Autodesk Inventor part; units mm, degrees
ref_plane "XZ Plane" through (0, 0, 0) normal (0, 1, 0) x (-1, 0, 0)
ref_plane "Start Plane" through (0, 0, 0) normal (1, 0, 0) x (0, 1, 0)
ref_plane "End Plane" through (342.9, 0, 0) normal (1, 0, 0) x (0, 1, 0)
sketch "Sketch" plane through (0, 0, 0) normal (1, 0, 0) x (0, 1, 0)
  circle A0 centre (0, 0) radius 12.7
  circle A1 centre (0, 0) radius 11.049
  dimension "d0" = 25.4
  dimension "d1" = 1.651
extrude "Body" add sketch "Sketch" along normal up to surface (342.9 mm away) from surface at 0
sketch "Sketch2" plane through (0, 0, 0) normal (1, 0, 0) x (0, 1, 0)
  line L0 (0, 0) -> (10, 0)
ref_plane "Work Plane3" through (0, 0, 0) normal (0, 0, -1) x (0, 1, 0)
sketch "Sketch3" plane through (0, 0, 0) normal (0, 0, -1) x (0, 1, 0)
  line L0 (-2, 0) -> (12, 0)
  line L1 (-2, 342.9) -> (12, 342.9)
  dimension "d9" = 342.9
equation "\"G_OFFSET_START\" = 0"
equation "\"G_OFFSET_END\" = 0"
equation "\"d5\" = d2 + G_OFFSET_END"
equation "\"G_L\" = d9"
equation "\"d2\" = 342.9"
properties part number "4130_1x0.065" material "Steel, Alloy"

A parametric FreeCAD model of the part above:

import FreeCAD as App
import Part
import Sketcher
Q = App.Units.Quantity

doc = App.newDocument("Part")
body = doc.addObject("PartDesign::Body", "Body")

sketch1 = body.newObject("Sketcher::SketchObject", "Sketch")
sketch1.AttachmentSupport = (doc.getObject("YZ_Plane"), [""])
sketch1.MapMode = "FlatFace"
sketch1.addGeometry([
    Part.Circle(App.Vector(0, 0, 0), App.Vector(0, 0, 1), 13),
    Part.Circle(App.Vector(0, 0, 0), App.Vector(0, 0, 1), 11),
], False)
sketch1.addConstraint([
    Sketcher.Constraint("Coincident", 0, 3, -1, 1),
    Sketcher.Constraint("Coincident", 1, 3, -1, 1),
    Sketcher.Constraint("Diameter", 0, Q("1 in")),
    Sketcher.Constraint("Diameter", 1, Q("0.87 in")),
])
pad1 = body.newObject("PartDesign::Pad", "Pad")
pad1.Profile = sketch1
pad1.Length = Q("13.5 in")

doc.recompute()
